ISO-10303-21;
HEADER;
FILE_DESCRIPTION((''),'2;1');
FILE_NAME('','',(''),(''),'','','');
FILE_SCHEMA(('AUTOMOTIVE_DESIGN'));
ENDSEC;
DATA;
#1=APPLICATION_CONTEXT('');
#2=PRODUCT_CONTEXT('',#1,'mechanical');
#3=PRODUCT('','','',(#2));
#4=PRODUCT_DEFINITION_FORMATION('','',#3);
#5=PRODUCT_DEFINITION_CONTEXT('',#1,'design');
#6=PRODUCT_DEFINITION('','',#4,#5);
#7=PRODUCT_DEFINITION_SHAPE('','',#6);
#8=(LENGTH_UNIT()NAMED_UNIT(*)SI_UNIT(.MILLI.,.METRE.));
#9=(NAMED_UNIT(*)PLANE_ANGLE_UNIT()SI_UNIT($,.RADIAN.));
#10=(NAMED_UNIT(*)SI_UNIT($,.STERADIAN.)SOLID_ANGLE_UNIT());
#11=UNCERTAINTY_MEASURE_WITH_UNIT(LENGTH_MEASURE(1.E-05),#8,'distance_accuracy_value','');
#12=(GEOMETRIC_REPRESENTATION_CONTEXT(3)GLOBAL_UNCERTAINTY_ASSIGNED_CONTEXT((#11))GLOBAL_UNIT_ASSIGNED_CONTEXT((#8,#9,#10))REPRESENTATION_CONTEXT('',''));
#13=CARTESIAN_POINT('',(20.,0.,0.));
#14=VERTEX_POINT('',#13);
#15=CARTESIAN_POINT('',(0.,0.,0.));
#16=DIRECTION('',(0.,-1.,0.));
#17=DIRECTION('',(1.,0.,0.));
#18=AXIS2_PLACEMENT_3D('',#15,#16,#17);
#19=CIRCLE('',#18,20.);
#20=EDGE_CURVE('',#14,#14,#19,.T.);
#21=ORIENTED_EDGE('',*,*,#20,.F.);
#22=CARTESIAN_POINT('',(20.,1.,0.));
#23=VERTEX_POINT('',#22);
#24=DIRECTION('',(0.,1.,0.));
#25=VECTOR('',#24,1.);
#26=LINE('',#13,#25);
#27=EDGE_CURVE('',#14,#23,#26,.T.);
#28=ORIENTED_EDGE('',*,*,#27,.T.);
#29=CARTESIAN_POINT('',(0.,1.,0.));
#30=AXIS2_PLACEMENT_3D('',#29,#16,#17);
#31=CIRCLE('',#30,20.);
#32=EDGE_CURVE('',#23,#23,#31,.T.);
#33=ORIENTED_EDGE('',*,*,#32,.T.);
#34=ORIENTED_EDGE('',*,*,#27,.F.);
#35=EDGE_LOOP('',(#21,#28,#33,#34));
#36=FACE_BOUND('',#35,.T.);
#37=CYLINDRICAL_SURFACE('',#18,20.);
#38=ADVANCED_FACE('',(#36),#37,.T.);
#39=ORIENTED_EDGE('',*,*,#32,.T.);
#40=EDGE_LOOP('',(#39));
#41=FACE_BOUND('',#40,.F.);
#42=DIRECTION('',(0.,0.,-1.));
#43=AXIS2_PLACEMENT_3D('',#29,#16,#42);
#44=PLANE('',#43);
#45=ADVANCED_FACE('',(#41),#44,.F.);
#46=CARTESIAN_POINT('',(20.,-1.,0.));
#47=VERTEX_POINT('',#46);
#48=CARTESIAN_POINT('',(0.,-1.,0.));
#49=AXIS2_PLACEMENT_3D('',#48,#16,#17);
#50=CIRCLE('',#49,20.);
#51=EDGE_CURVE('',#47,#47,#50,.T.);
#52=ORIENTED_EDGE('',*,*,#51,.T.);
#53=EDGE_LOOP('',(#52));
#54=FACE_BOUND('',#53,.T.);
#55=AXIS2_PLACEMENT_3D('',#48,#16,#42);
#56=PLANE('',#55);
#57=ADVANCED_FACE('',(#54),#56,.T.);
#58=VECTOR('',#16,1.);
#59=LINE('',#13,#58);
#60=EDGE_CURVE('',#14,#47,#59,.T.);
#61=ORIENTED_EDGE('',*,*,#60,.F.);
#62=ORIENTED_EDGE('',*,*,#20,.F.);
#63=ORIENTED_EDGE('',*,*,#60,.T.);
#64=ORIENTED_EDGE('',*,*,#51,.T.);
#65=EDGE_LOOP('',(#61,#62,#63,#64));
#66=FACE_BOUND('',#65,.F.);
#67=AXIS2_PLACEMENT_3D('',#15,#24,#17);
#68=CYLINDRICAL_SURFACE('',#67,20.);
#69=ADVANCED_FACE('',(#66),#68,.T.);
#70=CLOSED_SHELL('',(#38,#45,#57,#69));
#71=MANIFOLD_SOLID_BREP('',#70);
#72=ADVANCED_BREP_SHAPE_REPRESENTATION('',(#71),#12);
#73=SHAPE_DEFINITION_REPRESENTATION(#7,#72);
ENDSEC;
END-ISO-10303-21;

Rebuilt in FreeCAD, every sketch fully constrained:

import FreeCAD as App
import Part
import Sketcher

V = App.Vector

doc = App.newDocument("Part")
body = doc.addObject("PartDesign::Body", "Body")

sketch1 = body.newObject("Sketcher::SketchObject", "Sketch")
sketch1.AttachmentSupport = (doc.getObject("XZ_Plane"), [""])
sketch1.MapMode = "FlatFace"
sketch1.addGeometry(Part.Circle(V(0, 0, 0), V(0, 0, 1), 20), False)
sketch1.addConstraint([
    Sketcher.Constraint("Coincident", 0, 3, -1, 1),
    Sketcher.Constraint("Diameter", 0, 40.0),
])
pad1 = body.newObject("PartDesign::Pad", "Pad")
pad1.Profile = sketch1
pad1.Length = 2
pad1.Midplane = True

doc.recompute()
